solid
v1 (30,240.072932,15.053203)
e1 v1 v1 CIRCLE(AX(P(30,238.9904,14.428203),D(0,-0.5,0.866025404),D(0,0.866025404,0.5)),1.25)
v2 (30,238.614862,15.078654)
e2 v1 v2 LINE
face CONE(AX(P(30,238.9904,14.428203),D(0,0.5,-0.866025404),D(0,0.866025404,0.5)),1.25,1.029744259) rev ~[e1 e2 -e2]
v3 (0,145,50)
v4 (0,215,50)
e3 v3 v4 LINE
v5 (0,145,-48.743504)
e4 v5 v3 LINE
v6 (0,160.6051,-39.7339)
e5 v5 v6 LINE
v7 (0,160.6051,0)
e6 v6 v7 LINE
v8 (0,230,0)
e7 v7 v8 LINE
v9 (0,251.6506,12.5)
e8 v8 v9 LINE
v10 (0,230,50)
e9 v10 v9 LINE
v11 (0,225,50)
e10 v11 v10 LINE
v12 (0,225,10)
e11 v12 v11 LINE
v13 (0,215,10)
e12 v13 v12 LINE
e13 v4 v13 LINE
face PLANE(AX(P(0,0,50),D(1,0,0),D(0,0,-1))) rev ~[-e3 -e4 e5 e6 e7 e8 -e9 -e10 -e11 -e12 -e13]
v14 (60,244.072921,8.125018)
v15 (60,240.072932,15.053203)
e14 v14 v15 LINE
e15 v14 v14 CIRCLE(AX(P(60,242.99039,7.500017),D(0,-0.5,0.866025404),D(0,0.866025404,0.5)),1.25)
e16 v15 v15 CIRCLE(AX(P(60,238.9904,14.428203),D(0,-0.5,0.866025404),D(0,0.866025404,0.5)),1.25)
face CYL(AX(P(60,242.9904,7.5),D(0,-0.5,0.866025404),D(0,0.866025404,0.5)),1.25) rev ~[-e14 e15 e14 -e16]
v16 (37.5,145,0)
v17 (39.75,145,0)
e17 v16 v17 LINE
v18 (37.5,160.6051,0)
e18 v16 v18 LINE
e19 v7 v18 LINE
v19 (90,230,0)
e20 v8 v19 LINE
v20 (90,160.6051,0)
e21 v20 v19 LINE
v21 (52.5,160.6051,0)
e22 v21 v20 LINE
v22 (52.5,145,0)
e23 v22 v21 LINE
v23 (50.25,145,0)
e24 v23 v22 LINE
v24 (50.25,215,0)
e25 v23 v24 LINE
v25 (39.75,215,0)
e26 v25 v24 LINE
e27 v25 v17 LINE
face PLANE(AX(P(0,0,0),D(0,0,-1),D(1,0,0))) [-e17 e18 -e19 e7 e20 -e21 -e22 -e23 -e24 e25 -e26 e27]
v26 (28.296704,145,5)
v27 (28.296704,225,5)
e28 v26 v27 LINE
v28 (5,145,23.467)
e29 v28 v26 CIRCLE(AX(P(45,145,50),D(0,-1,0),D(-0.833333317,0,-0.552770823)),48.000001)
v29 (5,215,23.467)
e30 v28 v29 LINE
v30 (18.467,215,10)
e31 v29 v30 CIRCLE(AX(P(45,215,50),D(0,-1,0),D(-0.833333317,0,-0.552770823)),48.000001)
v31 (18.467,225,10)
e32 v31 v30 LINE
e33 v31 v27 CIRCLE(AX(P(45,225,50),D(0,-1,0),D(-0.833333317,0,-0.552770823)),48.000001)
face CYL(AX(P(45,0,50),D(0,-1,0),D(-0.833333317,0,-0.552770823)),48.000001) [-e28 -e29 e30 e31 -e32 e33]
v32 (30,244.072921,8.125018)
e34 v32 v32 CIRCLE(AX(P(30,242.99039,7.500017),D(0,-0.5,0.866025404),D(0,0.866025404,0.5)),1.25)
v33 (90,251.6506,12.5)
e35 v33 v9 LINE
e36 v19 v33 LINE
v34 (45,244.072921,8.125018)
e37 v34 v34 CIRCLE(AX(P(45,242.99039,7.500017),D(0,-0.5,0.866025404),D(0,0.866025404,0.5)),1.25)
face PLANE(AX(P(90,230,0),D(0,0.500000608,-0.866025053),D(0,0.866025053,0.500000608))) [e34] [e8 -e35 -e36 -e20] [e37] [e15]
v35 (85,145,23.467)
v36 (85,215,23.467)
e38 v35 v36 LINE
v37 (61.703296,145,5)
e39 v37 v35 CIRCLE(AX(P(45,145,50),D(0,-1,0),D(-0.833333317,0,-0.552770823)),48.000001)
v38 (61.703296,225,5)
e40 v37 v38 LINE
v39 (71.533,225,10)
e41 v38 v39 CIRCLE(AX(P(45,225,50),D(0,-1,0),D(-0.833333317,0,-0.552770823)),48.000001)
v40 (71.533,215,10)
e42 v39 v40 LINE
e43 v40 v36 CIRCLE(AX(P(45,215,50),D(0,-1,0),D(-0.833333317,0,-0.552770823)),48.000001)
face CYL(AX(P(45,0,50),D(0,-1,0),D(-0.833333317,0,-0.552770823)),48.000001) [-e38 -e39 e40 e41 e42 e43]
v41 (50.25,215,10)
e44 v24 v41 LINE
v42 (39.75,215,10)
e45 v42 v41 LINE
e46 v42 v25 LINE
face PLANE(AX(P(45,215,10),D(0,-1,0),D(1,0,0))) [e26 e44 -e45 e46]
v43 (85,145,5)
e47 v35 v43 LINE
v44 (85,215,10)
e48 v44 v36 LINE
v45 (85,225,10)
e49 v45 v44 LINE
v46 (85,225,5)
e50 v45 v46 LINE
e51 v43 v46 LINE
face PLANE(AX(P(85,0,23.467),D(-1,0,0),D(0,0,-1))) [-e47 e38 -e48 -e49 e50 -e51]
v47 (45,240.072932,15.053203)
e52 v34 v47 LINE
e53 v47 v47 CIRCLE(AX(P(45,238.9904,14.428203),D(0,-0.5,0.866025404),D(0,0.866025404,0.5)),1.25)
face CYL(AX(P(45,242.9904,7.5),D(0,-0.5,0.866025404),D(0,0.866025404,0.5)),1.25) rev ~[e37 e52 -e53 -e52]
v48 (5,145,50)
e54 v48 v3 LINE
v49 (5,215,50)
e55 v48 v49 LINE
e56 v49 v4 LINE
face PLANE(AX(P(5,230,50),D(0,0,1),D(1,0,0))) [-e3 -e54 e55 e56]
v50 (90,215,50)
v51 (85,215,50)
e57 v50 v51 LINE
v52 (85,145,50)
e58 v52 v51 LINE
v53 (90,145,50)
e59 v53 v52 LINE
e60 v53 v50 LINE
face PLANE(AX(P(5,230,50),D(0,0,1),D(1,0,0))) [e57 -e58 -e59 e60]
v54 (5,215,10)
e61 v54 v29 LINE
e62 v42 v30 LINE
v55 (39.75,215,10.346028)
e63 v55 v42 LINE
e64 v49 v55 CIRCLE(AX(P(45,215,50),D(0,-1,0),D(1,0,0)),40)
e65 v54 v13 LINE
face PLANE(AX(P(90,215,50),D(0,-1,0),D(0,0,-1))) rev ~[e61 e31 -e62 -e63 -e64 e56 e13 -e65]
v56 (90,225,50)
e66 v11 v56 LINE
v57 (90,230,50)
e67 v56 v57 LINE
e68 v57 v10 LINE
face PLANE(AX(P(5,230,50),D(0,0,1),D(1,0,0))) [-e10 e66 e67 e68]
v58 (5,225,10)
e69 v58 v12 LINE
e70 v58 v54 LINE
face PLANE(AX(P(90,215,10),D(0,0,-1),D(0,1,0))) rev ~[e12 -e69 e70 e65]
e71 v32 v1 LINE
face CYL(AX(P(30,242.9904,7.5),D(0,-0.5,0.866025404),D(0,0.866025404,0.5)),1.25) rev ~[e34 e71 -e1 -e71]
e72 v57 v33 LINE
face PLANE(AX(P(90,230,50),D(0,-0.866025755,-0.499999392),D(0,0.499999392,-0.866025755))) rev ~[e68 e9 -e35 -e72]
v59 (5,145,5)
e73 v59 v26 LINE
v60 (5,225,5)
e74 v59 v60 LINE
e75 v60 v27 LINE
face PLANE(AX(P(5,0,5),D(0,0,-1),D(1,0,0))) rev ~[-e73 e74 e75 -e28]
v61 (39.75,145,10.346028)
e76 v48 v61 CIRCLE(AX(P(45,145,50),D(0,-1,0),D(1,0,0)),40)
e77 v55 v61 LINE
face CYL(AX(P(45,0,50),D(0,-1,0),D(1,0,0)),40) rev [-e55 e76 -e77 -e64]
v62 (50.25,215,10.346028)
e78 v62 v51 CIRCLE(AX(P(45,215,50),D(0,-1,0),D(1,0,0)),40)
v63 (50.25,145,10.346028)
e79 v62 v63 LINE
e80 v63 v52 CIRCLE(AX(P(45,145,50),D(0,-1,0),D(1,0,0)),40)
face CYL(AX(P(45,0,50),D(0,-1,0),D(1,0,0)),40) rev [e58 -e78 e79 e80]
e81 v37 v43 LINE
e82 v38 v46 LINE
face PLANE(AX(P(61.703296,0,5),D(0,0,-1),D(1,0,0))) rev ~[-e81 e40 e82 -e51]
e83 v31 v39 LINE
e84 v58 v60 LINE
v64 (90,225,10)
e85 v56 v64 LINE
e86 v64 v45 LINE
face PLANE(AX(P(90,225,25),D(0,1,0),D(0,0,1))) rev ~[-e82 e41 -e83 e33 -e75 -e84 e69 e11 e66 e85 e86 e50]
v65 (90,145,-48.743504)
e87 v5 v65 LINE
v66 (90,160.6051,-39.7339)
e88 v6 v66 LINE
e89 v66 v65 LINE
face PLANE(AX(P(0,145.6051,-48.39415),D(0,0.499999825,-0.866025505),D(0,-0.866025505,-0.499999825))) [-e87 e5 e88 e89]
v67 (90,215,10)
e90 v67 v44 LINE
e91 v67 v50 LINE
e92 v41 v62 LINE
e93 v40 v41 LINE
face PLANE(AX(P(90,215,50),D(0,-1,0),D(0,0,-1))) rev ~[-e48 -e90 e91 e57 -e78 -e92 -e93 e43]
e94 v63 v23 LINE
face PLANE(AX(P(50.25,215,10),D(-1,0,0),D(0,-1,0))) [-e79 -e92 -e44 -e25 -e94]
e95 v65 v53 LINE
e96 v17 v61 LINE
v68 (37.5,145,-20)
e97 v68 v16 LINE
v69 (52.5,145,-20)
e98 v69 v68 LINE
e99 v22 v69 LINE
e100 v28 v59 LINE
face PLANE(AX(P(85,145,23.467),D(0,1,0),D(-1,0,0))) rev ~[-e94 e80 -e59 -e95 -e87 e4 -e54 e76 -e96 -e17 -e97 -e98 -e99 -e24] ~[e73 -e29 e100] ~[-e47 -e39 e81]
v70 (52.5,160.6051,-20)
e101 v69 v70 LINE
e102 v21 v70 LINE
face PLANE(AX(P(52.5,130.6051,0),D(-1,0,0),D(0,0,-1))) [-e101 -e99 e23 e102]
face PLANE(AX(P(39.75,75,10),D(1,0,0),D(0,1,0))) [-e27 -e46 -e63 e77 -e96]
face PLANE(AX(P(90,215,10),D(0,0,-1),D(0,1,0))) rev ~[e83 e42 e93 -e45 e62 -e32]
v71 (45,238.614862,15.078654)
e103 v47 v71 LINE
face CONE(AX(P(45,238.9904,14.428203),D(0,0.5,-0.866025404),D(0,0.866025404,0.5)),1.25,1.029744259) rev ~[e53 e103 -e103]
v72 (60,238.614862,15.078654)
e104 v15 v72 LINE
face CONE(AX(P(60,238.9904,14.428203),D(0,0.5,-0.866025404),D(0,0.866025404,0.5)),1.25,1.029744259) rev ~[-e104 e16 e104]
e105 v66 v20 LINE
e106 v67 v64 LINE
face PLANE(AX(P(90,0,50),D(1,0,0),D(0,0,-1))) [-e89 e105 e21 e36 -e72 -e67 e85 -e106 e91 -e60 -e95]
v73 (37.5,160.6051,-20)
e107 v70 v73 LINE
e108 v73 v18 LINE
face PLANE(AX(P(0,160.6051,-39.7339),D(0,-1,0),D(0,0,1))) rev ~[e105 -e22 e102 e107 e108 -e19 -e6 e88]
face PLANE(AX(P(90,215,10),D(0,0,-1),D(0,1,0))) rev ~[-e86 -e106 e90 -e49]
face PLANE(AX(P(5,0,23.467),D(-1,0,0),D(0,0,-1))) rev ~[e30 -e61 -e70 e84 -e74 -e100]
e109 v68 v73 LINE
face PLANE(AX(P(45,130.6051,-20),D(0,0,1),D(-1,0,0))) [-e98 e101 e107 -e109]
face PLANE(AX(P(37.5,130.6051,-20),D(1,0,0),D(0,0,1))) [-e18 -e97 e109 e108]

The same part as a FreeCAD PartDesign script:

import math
import FreeCAD as App
import Part
import Sketcher
Q = App.Units.Quantity

doc = App.newDocument("Part")
body = doc.addObject("PartDesign::Body", "Body")

sketch1 = body.newObject("Sketcher::SketchObject", "Sketch")
sketch1.AttachmentSupport = (doc.getObject("XZ_Plane"), [""])
sketch1.MapMode = "FlatFace"
sketch1.addGeometry(Part.LineSegment(App.Vector(0, 0, 0), App.Vector(0, 50, 0)), False)
sketch1.addGeometry(Part.LineSegment(App.Vector(0, 50, 0), App.Vector(5, 50, 0)), False)
sketch1.addGeometry(Part.ArcOfCircle(Part.Circle(App.Vector(45, 50, 0), App.Vector(0, 0, 1), 40), math.radians(180), math.radians(360)), False)
sketch1.addGeometry(Part.LineSegment(App.Vector(85, 50, 0), App.Vector(90, 50, 0)), False)
sketch1.addGeometry(Part.LineSegment(App.Vector(90, 50, 0), App.Vector(90, 0, 0)), False)
sketch1.addGeometry(Part.LineSegment(App.Vector(90, 0, 0), App.Vector(0, 0, 0)), False)
sketch1.addConstraint(Sketcher.Constraint("Coincident", 0, 2, 1, 1))
sketch1.addConstraint(Sketcher.Constraint("Coincident", 1, 2, 2, 1))
sketch1.addConstraint(Sketcher.Constraint("Coincident", 2, 2, 3, 1))
sketch1.addConstraint(Sketcher.Constraint("Coincident", 3, 2, 4, 1))
sketch1.addConstraint(Sketcher.Constraint("Coincident", 4, 2, 5, 1))
sketch1.addConstraint(Sketcher.Constraint("Coincident", 5, 2, 0, 1))
sketch1.addConstraint(Sketcher.Constraint("Vertical", 0))
sketch1.addConstraint(Sketcher.Constraint("Horizontal", 1))
sketch1.addConstraint(Sketcher.Constraint("Horizontal", 3))
sketch1.addConstraint(Sketcher.Constraint("Vertical", 4))
sketch1.addConstraint(Sketcher.Constraint("Horizontal", 5))
sketch1.addConstraint(Sketcher.Constraint("Coincident", 5, 2, -1, 1))
sketch1.addConstraint(Sketcher.Constraint("Horizontal", 2, 3, 0, 2))
sketch1.addConstraint(Sketcher.Constraint("Horizontal", 1, 2, 2, 2))
sketch1.addConstraint(Sketcher.Constraint("Equal", 1, 3))
sketch1.addConstraint(Sketcher.Constraint("Radius", 2, Q("40 mm")))
sketch1.addConstraint(Sketcher.Constraint("DistanceX", 1, 1, 1, 2, Q("5 mm")))
sketch1.addConstraint(Sketcher.Constraint("DistanceY", 0, 1, 0, 2, Q("50 mm")))
pad1 = body.newObject("PartDesign::Pad", "Pad")
pad1.Profile = sketch1
pad1.Length = 230
pad1.Reversed = True

sketch2 = body.newObject("Sketcher::SketchObject", "Sketch001")
sketch2.AttachmentSupport = (doc.getObject("XZ_Plane"), [""])
sketch2.MapMode = "FlatFace"
sketch2.addGeometry(Part.LineSegment(App.Vector(5, 23, 0), App.Vector(5, 5, 0)), False)
sketch2.addGeometry(Part.LineSegment(App.Vector(5, 5, 0), App.Vector(28, 5, 0)), False)
sketch2.addGeometry(Part.ArcOfCircle(Part.Circle(App.Vector(45, 50, 0), App.Vector(0, 0, 1), 48), math.radians(-146), math.radians(-110)), False)
sketch2.addGeometry(Part.LineSegment(App.Vector(62, 5, 0), App.Vector(85, 5, 0)), False)
sketch2.addGeometry(Part.LineSegment(App.Vector(85, 5, 0), App.Vector(85, 23, 0)), False)
sketch2.addGeometry(Part.ArcOfCircle(Part.Circle(App.Vector(45, 50, 0), App.Vector(0, 0, 1), 48), math.radians(-70), math.radians(-34)), False)
sketch2.addConstraint(Sketcher.Constraint("Coincident", 0, 2, 1, 1))
sketch2.addConstraint(Sketcher.Constraint("Coincident", 1, 2, 2, 2))
sketch2.addConstraint(Sketcher.Constraint("Coincident", 2, 1, 0, 1))
sketch2.addConstraint(Sketcher.Constraint("Coincident", 3, 2, 4, 1))
sketch2.addConstraint(Sketcher.Constraint("Coincident", 4, 2, 5, 2))
sketch2.addConstraint(Sketcher.Constraint("Coincident", 5, 1, 3, 1))
sketch2.addConstraint(Sketcher.Constraint("Vertical", 0))
sketch2.addConstraint(Sketcher.Constraint("Horizontal", 1))
sketch2.addConstraint(Sketcher.Constraint("Horizontal", 3))
sketch2.addConstraint(Sketcher.Constraint("Vertical", 4))
sketch2.addConstraint(Sketcher.Constraint("Coincident", 5, 3, 2, 3))
sketch2.addConstraint(Sketcher.Constraint("Equal", 2, 5))
sketch2.addConstraint(Sketcher.Constraint("Horizontal", 1, 2, 3, 2))
sketch2.addConstraint(Sketcher.Constraint("Horizontal", 2, 1, 4, 2))
sketch2.addConstraint(Sketcher.Constraint("Radius", 2, Q("48 mm")))
sketch2.addConstraint(Sketcher.Constraint("DistanceX", -1, 1, 2, 3, Q("45 mm")))
sketch2.addConstraint(Sketcher.Constraint("DistanceY", -1, 1, 2, 3, Q("50 mm")))
sketch2.addConstraint(Sketcher.Constraint("DistanceX", -1, 1, 0, 2, Q("5 mm")))
sketch2.addConstraint(Sketcher.Constraint("DistanceY", -1, 1, 0, 2, Q("5 mm")))
pocket1 = body.newObject("PartDesign::Pocket", "Pocket")
pocket1.Profile = sketch2
pocket1.Length = 225

sketch3 = body.newObject("Sketcher::SketchObject", "Sketch002")
sketch3.AttachmentSupport = (doc.getObject("XZ_Plane"), [""])
sketch3.MapMode = "FlatFace"
sketch3.AttachmentOffset = App.Placement(App.Vector(0, 0, -230), App.Rotation())
sketch3.addGeometry(Part.LineSegment(App.Vector(5, 50, 0), App.Vector(85, 50, 0)), False)
sketch3.addGeometry(Part.ArcOfCircle(Part.Circle(App.Vector(45, 50, 0), App.Vector(0, 0, 1), 40), math.radians(180), math.radians(360)), False)
sketch3.addConstraint(Sketcher.Constraint("Coincident", 0, 1, 1, 1))
sketch3.addConstraint(Sketcher.Constraint("Coincident", 1, 2, 0, 2))
sketch3.addConstraint(Sketcher.Constraint("Horizontal", 0))
sketch3.addConstraint(Sketcher.Constraint("Horizontal", 1, 3, 0, 1))
sketch3.addConstraint(Sketcher.Constraint("Radius", 1, Q("40 mm")))
sketch3.addConstraint(Sketcher.Constraint("DistanceX", -1, 1, 1, 3, Q("45 mm")))
sketch3.addConstraint(Sketcher.Constraint("DistanceY", -1, 1, 1, 3, Q("50 mm")))
pad2 = body.newObject("PartDesign::Pad", "Pad001")
pad2.Profile = sketch3
pad2.Length = 5

sketch4 = body.newObject("Sketcher::SketchObject", "Sketch003")
sketch4.AttachmentSupport = (doc.getObject("YZ_Plane"), [""])
sketch4.MapMode = "FlatFace"
sketch4.AttachmentOffset = App.Placement(App.Vector(0, 0, 90), App.Rotation())
sketch4.addGeometry(Part.LineSegment(App.Vector(75, 50, 0), App.Vector(65, 50, 0)), False)
sketch4.addGeometry(Part.LineSegment(App.Vector(65, 50, 0), App.Vector(65, 10, 0)), False)
sketch4.addGeometry(Part.LineSegment(App.Vector(65, 10, 0), App.Vector(75, 10, 0)), False)
sketch4.addGeometry(Part.LineSegment(App.Vector(75, 10, 0), App.Vector(75, 50, 0)), False)
sketch4.addGeometry(Part.LineSegment(App.Vector(225, 50, 0), App.Vector(215, 50, 0)), False)
sketch4.addGeometry(Part.LineSegment(App.Vector(215, 50, 0), App.Vector(215, 10, 0)), False)
sketch4.addGeometry(Part.LineSegment(App.Vector(215, 10, 0), App.Vector(225, 10, 0)), False)
sketch4.addGeometry(Part.LineSegment(App.Vector(225, 10, 0), App.Vector(225, 50, 0)), False)
sketch4.addConstraint(Sketcher.Constraint("Coincident", 0, 2, 1, 1))
sketch4.addConstraint(Sketcher.Constraint("Coincident", 1, 2, 2, 1))
sketch4.addConstraint(Sketcher.Constraint("Coincident", 2, 2, 3, 1))
sketch4.addConstraint(Sketcher.Constraint("Coincident", 3, 2, 0, 1))
sketch4.addConstraint(Sketcher.Constraint("Coincident", 4, 2, 5, 1))
sketch4.addConstraint(Sketcher.Constraint("Coincident", 5, 2, 6, 1))
sketch4.addConstraint(Sketcher.Constraint("Coincident", 6, 2, 7, 1))
sketch4.addConstraint(Sketcher.Constraint("Coincident", 7, 2, 4, 1))
sketch4.addConstraint(Sketcher.Constraint("Horizontal", 0))
sketch4.addConstraint(Sketcher.Constraint("Vertical", 1))
sketch4.addConstraint(Sketcher.Constraint("Horizontal", 2))
sketch4.addConstraint(Sketcher.Constraint("Vertical", 3))
sketch4.addConstraint(Sketcher.Constraint("Horizontal", 4))
sketch4.addConstraint(Sketcher.Constraint("Vertical", 5))
sketch4.addConstraint(Sketcher.Constraint("Horizontal", 6))
sketch4.addConstraint(Sketcher.Constraint("Vertical", 7))
sketch4.addConstraint(Sketcher.Constraint("Horizontal", 3, 2, 4, 2))
sketch4.addConstraint(Sketcher.Constraint("Horizontal", 2, 2, 5, 2))
sketch4.addConstraint(Sketcher.Constraint("Equal", 2, 4))
sketch4.addConstraint(Sketcher.Constraint("DistanceX", 0, 2, 0, 1, Q("10 mm")))
sketch4.addConstraint(Sketcher.Constraint("DistanceY", 1, 2, 1, 1, Q("40 mm")))
sketch4.addConstraint(Sketcher.Constraint("DistanceX", -1, 1, 0, 2, Q("65 mm")))
sketch4.addConstraint(Sketcher.Constraint("DistanceY", -1, 1, 1, 2, Q("10 mm")))
sketch4.addConstraint(Sketcher.Constraint("DistanceX", 3, 2, 4, 2, Q("140 mm")))
pocket2 = body.newObject("PartDesign::Pocket", "Pocket001")
pocket2.Profile = sketch4
pocket2.Length = 90

sketch5 = body.newObject("Sketcher::SketchObject", "Sketch004")
sketch5.AttachmentSupport = (doc.getObject("YZ_Plane"), [""])
sketch5.MapMode = "FlatFace"
sketch5.AttachmentOffset = App.Placement(App.Vector(0, 0, 90), App.Rotation())
sketch5.addGeometry(Part.LineSegment(App.Vector(252, 12, 0), App.Vector(230, 50, 0)), False)
sketch5.addGeometry(Part.LineSegment(App.Vector(230, 50, 0), App.Vector(230, 0, 0)), False)
sketch5.addGeometry(Part.LineSegment(App.Vector(230, 0, 0), App.Vector(252, 12, 0)), False)
sketch5.addConstraint(Sketcher.Constraint("Coincident", 0, 2, 1, 1))
sketch5.addConstraint(Sketcher.Constraint("Coincident", 1, 2, 2, 1))
sketch5.addConstraint(Sketcher.Constraint("Coincident", 2, 2, 0, 1))
sketch5.addConstraint(Sketcher.Constraint("Vertical", 1))
sketch5.addConstraint(Sketcher.Constraint("PointOnObject", 1, 2, -1))
sketch5.addConstraint(Sketcher.Constraint("Perpendicular", 0, 2))
sketch5.addConstraint(Sketcher.Constraint("Angle", 0, Q("120 deg")))
sketch5.addConstraint(Sketcher.Constraint("DistanceY", 1, 2, 1, 1, Q("50 mm")))
sketch5.addConstraint(Sketcher.Constraint("DistanceX", -1, 1, 0, 2, Q("230 mm")))
pad3 = body.newObject("PartDesign::Pad", "Pad002")
pad3.Profile = sketch5
pad3.Length = 90
pad3.Reversed = True

sketch6 = body.newObject("Sketcher::SketchObject", "Sketch005")
sketch6.Placement = App.Placement(App.Vector(0, 57.500005, -99.59293), App.Rotation(App.Vector(0, 0.866025404, 0.5), App.Vector(1, 0, 0), App.Vector(0, 0.5, -0.866025404), "ZXY"))
sketch6.addGeometry(Part.Circle(App.Vector(214.2, 45, 0), App.Vector(0, 0, 1), 1.2), False)
sketch6.addGeometry(Part.Circle(App.Vector(214.2, 30, 0), App.Vector(0, 0, 1), 1.2), False)
sketch6.addGeometry(Part.Circle(App.Vector(214.2, 60, 0), App.Vector(0, 0, 1), 1.2), False)
sketch6.addConstraint(Sketcher.Constraint("Equal", 0, 1))
sketch6.addConstraint(Sketcher.Constraint("Equal", 1, 2))
sketch6.addConstraint(Sketcher.Constraint("Vertical", 0, 3, 1, 3))
sketch6.addConstraint(Sketcher.Constraint("Vertical", 1, 3, 2, 3))
sketch6.addConstraint(Sketcher.Constraint("Diameter", 0, Q("2.5 mm")))
sketch6.addConstraint(Sketcher.Constraint("DistanceY", -1, 1, 0, 3, Q("45 mm")))
sketch6.addConstraint(Sketcher.Constraint("DistanceY", -1, 1, 1, 3, Q("30 mm")))
sketch6.addConstraint(Sketcher.Constraint("DistanceY", -1, 1, 2, 3, Q("60 mm")))
sketch6.addConstraint(Sketcher.Constraint("DistanceX", -1, 1, 0, 3, Q("214.1859 mm")))
doc.recompute()
hole = body.newObject("PartDesign::Hole", "Hole")
hole.Profile = sketch6
hole.ThreadType = "None"
hole.Diameter = 2.5
hole.DepthType = "Dimension"
hole.Depth = 8
hole.DrillPoint = "Angled"
hole.DrillPointAngle = 118

sketch7 = body.newObject("Sketcher::SketchObject", "Sketch006")
sketch7.AttachmentSupport = (doc.getObject("XY_Plane"), [""])
sketch7.MapMode = "FlatFace"
sketch7.AttachmentOffset = App.Placement(App.Vector(0, 0, 10), App.Rotation())
sketch7.addGeometry(Part.LineSegment(App.Vector(50, 75, 0), App.Vector(50, 215, 0)), False)
sketch7.addGeometry(Part.LineSegment(App.Vector(50, 215, 0), App.Vector(40, 215, 0)), False)
sketch7.addGeometry(Part.LineSegment(App.Vector(40, 215, 0), App.Vector(40, 75, 0)), False)
sketch7.addGeometry(Part.LineSegment(App.Vector(40, 75, 0), App.Vector(50, 75, 0)), False)
sketch7.addConstraint(Sketcher.Constraint("Coincident", 0, 2, 1, 1))
sketch7.addConstraint(Sketcher.Constraint("Coincident", 1, 2, 2, 1))
sketch7.addConstraint(Sketcher.Constraint("Coincident", 2, 2, 3, 1))
sketch7.addConstraint(Sketcher.Constraint("Coincident", 3, 2, 0, 1))
sketch7.addConstraint(Sketcher.Constraint("Vertical", 0))
sketch7.addConstraint(Sketcher.Constraint("Horizontal", 1))
sketch7.addConstraint(Sketcher.Constraint("Vertical", 2))
sketch7.addConstraint(Sketcher.Constraint("Horizontal", 3))
sketch7.addConstraint(Sketcher.Constraint("DistanceY", 0, 1, 0, 2, Q("140 mm")))
sketch7.addConstraint(Sketcher.Constraint("DistanceX", 1, 2, 1, 1, Q("10.5 mm")))
sketch7.addConstraint(Sketcher.Constraint("DistanceY", -1, 1, 0, 2, Q("215 mm")))
sketch7.addConstraint(Sketcher.Constraint("DistanceX", -1, 1, 0, 2, Q("50.25 mm")))
pocket3 = body.newObject("PartDesign::Pocket", "Pocket002")
pocket3.Profile = sketch7
pocket3.Type = "ThroughAll"
pocket3.Midplane = True

sketch8 = body.newObject("Sketcher::SketchObject", "Sketch007")
sketch8.AttachmentSupport = (doc.getObject("XZ_Plane"), [""])
sketch8.MapMode = "FlatFace"
sketch8.AttachmentOffset = App.Placement(App.Vector(0, 0, -45), App.Rotation())
sketch8.addGeometry(Part.LineSegment(App.Vector(-12, 50, 0), App.Vector(90, 50, 0)), False)
sketch8.addGeometry(Part.LineSegment(App.Vector(90, 50, 0), App.Vector(90, -10, 0)), False)
sketch8.addGeometry(Part.LineSegment(App.Vector(90, -10, 0), App.Vector(-12, -10, 0)), False)
sketch8.addGeometry(Part.LineSegment(App.Vector(-12, -10, 0), App.Vector(-12, 50, 0)), False)
sketch8.addConstraint(Sketcher.Constraint("Coincident", 0, 2, 1, 1))
sketch8.addConstraint(Sketcher.Constraint("Coincident", 1, 2, 2, 1))
sketch8.addConstraint(Sketcher.Constraint("Coincident", 2, 2, 3, 1))
sketch8.addConstraint(Sketcher.Constraint("Coincident", 3, 2, 0, 1))
sketch8.addConstraint(Sketcher.Constraint("Horizontal", 0))
sketch8.addConstraint(Sketcher.Constraint("Vertical", 1))
sketch8.addConstraint(Sketcher.Constraint("Horizontal", 2))
sketch8.addConstraint(Sketcher.Constraint("Vertical", 3))
sketch8.addConstraint(Sketcher.Constraint("DistanceX", -1, 1, 0, 2, Q("90 mm")))
sketch8.addConstraint(Sketcher.Constraint("DistanceY", -1, 1, 0, 2, Q("50 mm")))
sketch8.addConstraint(Sketcher.Constraint("DistanceX", 0, 1, 0, 2, Q("101.86 mm")))
sketch8.addConstraint(Sketcher.Constraint("DistanceY", 1, 2, 1, 1, Q("60.1995 mm")))
pocket4 = body.newObject("PartDesign::Pocket", "Pocket003")
pocket4.Profile = sketch8
pocket4.Length = 50
pocket4.Reversed = True

sketch9 = body.newObject("Sketcher::SketchObject", "Sketch008")
sketch9.AttachmentSupport = (doc.getObject("YZ_Plane"), [""])
sketch9.MapMode = "FlatFace"
sketch9.addGeometry(Part.LineSegment(App.Vector(131, -57, 0), App.Vector(131, 0, 0)), False)
sketch9.addGeometry(Part.LineSegment(App.Vector(131, 0, 0), App.Vector(161, 0, 0)), False)
sketch9.addGeometry(Part.LineSegment(App.Vector(161, 0, 0), App.Vector(161, -40, 0)), False)
sketch9.addGeometry(Part.LineSegment(App.Vector(161, -40, 0), App.Vector(131, -57, 0)), False)
sketch9.addConstraint(Sketcher.Constraint("Coincident", 0, 2, 1, 1))
sketch9.addConstraint(Sketcher.Constraint("Coincident", 1, 2, 2, 1))
sketch9.addConstraint(Sketcher.Constraint("Coincident", 2, 2, 3, 1))
sketch9.addConstraint(Sketcher.Constraint("Coincident", 3, 2, 0, 1))
sketch9.addConstraint(Sketcher.Constraint("Vertical", 0))
sketch9.addConstraint(Sketcher.Constraint("Horizontal", 1))
sketch9.addConstraint(Sketcher.Constraint("Vertical", 2))
sketch9.addConstraint(Sketcher.Constraint("PointOnObject", 0, 2, -1))
sketch9.addConstraint(Sketcher.Constraint("DistanceX", 1, 1, 1, 2, Q("30 mm")))
sketch9.addConstraint(Sketcher.Constraint("Angle", 3, Q("-150 deg")))
sketch9.addConstraint(Sketcher.Constraint("DistanceY", 2, 2, 2, 1, Q("39.734 mm")))
sketch9.addConstraint(Sketcher.Constraint("DistanceX", -1, 1, 0, 2, Q("130.605 mm")))
pad4 = body.newObject("PartDesign::Pad", "Pad003")
pad4.Profile = sketch9
pad4.Length = 90

sketch10 = body.newObject("Sketcher::SketchObject", "Sketch009")
sketch10.AttachmentSupport = (doc.getObject("XZ_Plane"), [""])
sketch10.MapMode = "FlatFace"
sketch10.AttachmentOffset = App.Placement(App.Vector(0, 0, -130.6051), App.Rotation())
sketch10.addGeometry(Part.LineSegment(App.Vector(38, 0, 0), App.Vector(38, -20, 0)), False)
sketch10.addGeometry(Part.LineSegment(App.Vector(38, -20, 0), App.Vector(52, -20, 0)), False)
sketch10.addGeometry(Part.LineSegment(App.Vector(52, -20, 0), App.Vector(52, 0, 0)), False)
sketch10.addGeometry(Part.LineSegment(App.Vector(52, 0, 0), App.Vector(38, 0, 0)), False)
sketch10.addConstraint(Sketcher.Constraint("Coincident", 0, 2, 1, 1))
sketch10.addConstraint(Sketcher.Constraint("Coincident", 1, 2, 2, 1))
sketch10.addConstraint(Sketcher.Constraint("Coincident", 2, 2, 3, 1))
sketch10.addConstraint(Sketcher.Constraint("Coincident", 3, 2, 0, 1))
sketch10.addConstraint(Sketcher.Constraint("Vertical", 0))
sketch10.addConstraint(Sketcher.Constraint("Horizontal", 1))
sketch10.addConstraint(Sketcher.Constraint("Vertical", 2))
sketch10.addConstraint(Sketcher.Constraint("Horizontal", 3))
sketch10.addConstraint(Sketcher.Constraint("PointOnObject", 2, 2, -1))
sketch10.addConstraint(Sketcher.Constraint("DistanceX", 1, 1, 1, 2, Q("15 mm")))
sketch10.addConstraint(Sketcher.Constraint("DistanceY", 0, 2, 0, 1, Q("20 mm")))
sketch10.addConstraint(Sketcher.Constraint("DistanceX", -1, 1, 0, 2, Q("37.5 mm")))
pocket5 = body.newObject("PartDesign::Pocket", "Pocket004")
pocket5.Profile = sketch10
pocket5.Length = 90

sketch11 = body.newObject("Sketcher::SketchObject", "Sketch010")
sketch11.AttachmentSupport = (doc.getObject("XZ_Plane"), [""])
sketch11.MapMode = "FlatFace"
sketch11.AttachmentOffset = App.Placement(App.Vector(0, 0, -145), App.Rotation())
sketch11.addGeometry(Part.LineSegment(App.Vector(144, -69, 0), App.Vector(-40, -69, 0)), False)
sketch11.addGeometry(Part.LineSegment(App.Vector(-40, -69, 0), App.Vector(-40, 87, 0)), False)
sketch11.addGeometry(Part.LineSegment(App.Vector(-40, 87, 0), App.Vector(144, 87, 0)), False)
sketch11.addGeometry(Part.LineSegment(App.Vector(144, 87, 0), App.Vector(144, -69, 0)), False)
sketch11.addConstraint(Sketcher.Constraint("Coincident", 0, 2, 1, 1))
sketch11.addConstraint(Sketcher.Constraint("Coincident", 1, 2, 2, 1))
sketch11.addConstraint(Sketcher.Constraint("Coincident", 2, 2, 3, 1))
sketch11.addConstraint(Sketcher.Constraint("Coincident", 3, 2, 0, 1))
sketch11.addConstraint(Sketcher.Constraint("Horizontal", 0))
sketch11.addConstraint(Sketcher.Constraint("Vertical", 1))
sketch11.addConstraint(Sketcher.Constraint("Horizontal", 2))
sketch11.addConstraint(Sketcher.Constraint("Vertical", 3))
sketch11.addConstraint(Sketcher.Constraint("DistanceX", 0, 2, 0, 1, Q("183.8757 mm")))
sketch11.addConstraint(Sketcher.Constraint("DistanceY", 1, 1, 1, 2, Q("156.0766 mm")))
sketch11.addConstraint(Sketcher.Constraint("DistanceY", -1, 1, 1, 2, Q("86.579 mm")))
sketch11.addConstraint(Sketcher.Constraint("DistanceX", 0, 2, -1, 1, Q("40.1914 mm")))
pocket6 = body.newObject("PartDesign::Pocket", "Pocket005")
pocket6.Profile = sketch11
pocket6.Length = 110
pocket6.Reversed = True

doc.recompute()
